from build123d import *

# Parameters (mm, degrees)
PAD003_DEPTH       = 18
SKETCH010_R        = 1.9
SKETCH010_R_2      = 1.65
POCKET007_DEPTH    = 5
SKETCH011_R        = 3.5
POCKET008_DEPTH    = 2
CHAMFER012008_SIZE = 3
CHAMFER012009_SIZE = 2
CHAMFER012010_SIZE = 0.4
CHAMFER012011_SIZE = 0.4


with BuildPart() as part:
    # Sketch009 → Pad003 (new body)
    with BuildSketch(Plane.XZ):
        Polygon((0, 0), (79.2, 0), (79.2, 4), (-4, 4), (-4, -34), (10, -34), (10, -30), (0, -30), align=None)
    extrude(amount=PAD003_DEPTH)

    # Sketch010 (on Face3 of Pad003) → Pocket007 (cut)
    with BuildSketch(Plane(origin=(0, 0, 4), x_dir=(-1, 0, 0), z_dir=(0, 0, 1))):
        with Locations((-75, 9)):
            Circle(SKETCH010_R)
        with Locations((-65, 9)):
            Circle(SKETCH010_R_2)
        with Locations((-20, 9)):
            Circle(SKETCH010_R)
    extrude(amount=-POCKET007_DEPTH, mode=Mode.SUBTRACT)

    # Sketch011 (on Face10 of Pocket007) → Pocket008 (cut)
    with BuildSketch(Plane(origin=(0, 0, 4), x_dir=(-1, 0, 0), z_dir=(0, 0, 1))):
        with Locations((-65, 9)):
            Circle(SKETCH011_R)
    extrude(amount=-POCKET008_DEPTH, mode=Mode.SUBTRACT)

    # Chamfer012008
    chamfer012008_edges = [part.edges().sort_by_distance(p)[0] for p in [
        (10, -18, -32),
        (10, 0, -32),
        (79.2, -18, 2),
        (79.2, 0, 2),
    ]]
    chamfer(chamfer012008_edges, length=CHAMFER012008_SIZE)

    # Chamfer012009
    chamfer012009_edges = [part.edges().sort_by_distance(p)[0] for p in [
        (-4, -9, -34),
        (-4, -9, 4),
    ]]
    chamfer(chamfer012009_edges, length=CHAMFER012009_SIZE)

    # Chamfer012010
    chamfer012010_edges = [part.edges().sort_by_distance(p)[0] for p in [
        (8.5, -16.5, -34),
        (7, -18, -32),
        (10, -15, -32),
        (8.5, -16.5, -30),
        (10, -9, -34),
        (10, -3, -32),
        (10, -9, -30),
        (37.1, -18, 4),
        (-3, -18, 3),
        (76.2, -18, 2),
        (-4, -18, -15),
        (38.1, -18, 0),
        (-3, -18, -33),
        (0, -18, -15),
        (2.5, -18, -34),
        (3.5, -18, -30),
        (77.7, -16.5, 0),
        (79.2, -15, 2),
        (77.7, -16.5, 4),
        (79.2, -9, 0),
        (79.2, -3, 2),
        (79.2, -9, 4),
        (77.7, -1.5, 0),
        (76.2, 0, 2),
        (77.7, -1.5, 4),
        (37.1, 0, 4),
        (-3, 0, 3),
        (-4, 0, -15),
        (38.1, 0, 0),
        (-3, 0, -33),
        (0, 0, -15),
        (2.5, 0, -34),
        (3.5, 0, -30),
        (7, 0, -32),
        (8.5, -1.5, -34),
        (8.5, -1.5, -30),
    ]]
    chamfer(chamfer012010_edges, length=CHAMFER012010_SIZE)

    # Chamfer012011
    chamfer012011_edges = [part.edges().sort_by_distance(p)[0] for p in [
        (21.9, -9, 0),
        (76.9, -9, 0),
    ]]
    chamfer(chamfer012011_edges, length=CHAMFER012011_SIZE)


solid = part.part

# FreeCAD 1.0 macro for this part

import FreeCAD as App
import Part
import Sketcher
from FreeCAD import Vector


def edges_at(feature, points):
    """Names of the edges that pass closest to the given points."""
    edges = feature.Shape.Edges
    near = lambda p: min(range(len(edges)), key=lambda i: edges[i].distToShape(Part.Vertex(*p))[0])
    return sorted({f"Edge{near(p) + 1}" for p in points})

doc = App.newDocument("Part")
params = doc.addObject("Spreadsheet::Sheet", "Params")
for row, (alias, value) in enumerate([
    ("sketch1_width", "14 mm"),
    ("sketch1_width2", "10 mm"),
    ("sketch1_height", "4 mm"),
    ("sketch1_height2", "38 mm"),
    ("sketch1_width3", "79.2 mm"),
    ("pad1_length", "18 mm"),
    ("sketch2_diameter", "3.8 mm"),
    ("sketch2_diameter2", "3.3 mm"),
    ("pocket1_length", "5 mm"),
    ("sketch3_diameter", "7 mm"),
    ("pocket2_length", "2 mm"),
    ("chamfer_size", "3 mm"),
    ("chamfer2_size", "2 mm"),
    ("chamfer3_size", "0.4 mm"),
    ("chamfer4_size", "0.4 mm"),
], start=1):
    params.set(f"A{row}", alias)
    params.set(f"B{row}", "=" + value)
    params.setAlias(f"B{row}", alias)

body = doc.addObject("PartDesign::Body", "Body")

sketch1 = doc.addObject("Sketcher::SketchObject", "Sketch")
body.addObject(sketch1)
sketch1.AttachmentSupport = (doc.XZ_Plane, [""])
sketch1.MapMode = "FlatFace"
sketch1.addGeometry(Part.LineSegment(Vector(0, 0, 0), Vector(79.2, 0, 0)), False)
sketch1.addGeometry(Part.LineSegment(Vector(79.2, 0, 0), Vector(79.2, 4, 0)), False)
sketch1.addGeometry(Part.LineSegment(Vector(79.2, 4, 0), Vector(-4, 4, 0)), False)
sketch1.addGeometry(Part.LineSegment(Vector(-4, 4, 0), Vector(-4, -34, 0)), False)
sketch1.addGeometry(Part.LineSegment(Vector(-4, -34, 0), Vector(10, -34, 0)), False)
sketch1.addGeometry(Part.LineSegment(Vector(10, -34, 0), Vector(10, -30, 0)), False)
sketch1.addGeometry(Part.LineSegment(Vector(10, -30, 0), Vector(0, -30, 0)), False)
sketch1.addGeometry(Part.LineSegment(Vector(0, -30, 0), Vector(0, 0, 0)), False)
sketch1.addConstraint(Sketcher.Constraint("Coincident", 0, 2, 1, 1))
sketch1.addConstraint(Sketcher.Constraint("Coincident", 1, 2, 2, 1))
sketch1.addConstraint(Sketcher.Constraint("Coincident", 2, 2, 3, 1))
sketch1.addConstraint(Sketcher.Constraint("Coincident", 3, 2, 4, 1))
sketch1.addConstraint(Sketcher.Constraint("Coincident", 4, 2, 5, 1))
sketch1.addConstraint(Sketcher.Constraint("Coincident", 5, 2, 6, 1))
sketch1.addConstraint(Sketcher.Constraint("Coincident", 6, 2, 7, 1))
sketch1.addConstraint(Sketcher.Constraint("Coincident", 7, 2, 0, 1))
sketch1.addConstraint(Sketcher.Constraint("Horizontal", 0))
sketch1.addConstraint(Sketcher.Constraint("Vertical", 1))
sketch1.addConstraint(Sketcher.Constraint("Horizontal", 2))
sketch1.addConstraint(Sketcher.Constraint("Vertical", 3))
sketch1.addConstraint(Sketcher.Constraint("Horizontal", 4))
sketch1.addConstraint(Sketcher.Constraint("Vertical", 5))
sketch1.addConstraint(Sketcher.Constraint("Horizontal", 6))
sketch1.addConstraint(Sketcher.Constraint("Vertical", 7))
sketch1.addConstraint(Sketcher.Constraint("Coincident", 7, 2, -1, 1))
sketch1.addConstraint(Sketcher.Constraint("Equal", 1, 5))
sketch1.addConstraint(Sketcher.Constraint("DistanceX", 4, 1, 4, 2, 14.0))
sketch1.addConstraint(Sketcher.Constraint("DistanceX", 6, 2, 6, 1, 10.0))
sketch1.addConstraint(Sketcher.Constraint("DistanceY", 1, 1, 1, 2, 4.0))
sketch1.addConstraint(Sketcher.Constraint("DistanceY", 3, 2, 3, 1, 38.0))
sketch1.addConstraint(Sketcher.Constraint("DistanceX", 0, 1, 0, 2, 79.2))
sketch1.setExpression("Constraints[18]", "Params.sketch1_width")
sketch1.setExpression("Constraints[19]", "Params.sketch1_width2")
sketch1.setExpression("Constraints[20]", "Params.sketch1_height")
sketch1.setExpression("Constraints[21]", "Params.sketch1_height2")
sketch1.setExpression("Constraints[22]", "Params.sketch1_width3")
pad1 = doc.addObject("PartDesign::Pad", "Pad")
body.addObject(pad1)
pad1.Profile = sketch1
pad1.setExpression("Length", "Params.pad1_length")

sketch2 = doc.addObject("Sketcher::SketchObject", "Sketch001")
body.addObject(sketch2)
sketch2.AttachmentSupport = (doc.XY_Plane, [""])
sketch2.MapMode = "FlatFace"
sketch2.AttachmentOffset = App.Placement(Vector(0, 0, 4), App.Rotation())
sketch2.addGeometry(Part.Circle(Vector(75, -9, 0), Vector(0, 0, 1), 1.9), False)
sketch2.addGeometry(Part.Circle(Vector(65, -9, 0), Vector(0, 0, 1), 1.6), False)
sketch2.addGeometry(Part.Circle(Vector(20, -9, 0), Vector(0, 0, 1), 1.9), False)
sketch2.addConstraint(Sketcher.Constraint("Equal", 0, 2))
sketch2.addConstraint(Sketcher.Constraint("Horizontal", 0, 3, 1, 3))
sketch2.addConstraint(Sketcher.Constraint("Horizontal", 1, 3, 2, 3))
sketch2.addConstraint(Sketcher.Constraint("Diameter", 0, 3.8))
sketch2.addConstraint(Sketcher.Constraint("Diameter", 1, 3.3))
sketch2.addConstraint(Sketcher.Constraint("DistanceX", -1, 1, 0, 3, 75.0))
sketch2.addConstraint(Sketcher.Constraint("DistanceY", 0, 3, -1, 1, 9.0))
sketch2.addConstraint(Sketcher.Constraint("DistanceX", -1, 1, 1, 3, 65.0))
sketch2.addConstraint(Sketcher.Constraint("DistanceX", -1, 1, 2, 3, 20.0))
sketch2.setExpression("Constraints[3]", "Params.sketch2_diameter")
sketch2.setExpression("Constraints[4]", "Params.sketch2_diameter2")
pocket1 = doc.addObject("PartDesign::Pocket", "Pocket")
body.addObject(pocket1)
pocket1.Profile = sketch2
pocket1.setExpression("Length", "Params.pocket1_length")

sketch3 = doc.addObject("Sketcher::SketchObject", "Sketch002")
body.addObject(sketch3)
sketch3.AttachmentSupport = (doc.XY_Plane, [""])
sketch3.MapMode = "FlatFace"
sketch3.AttachmentOffset = App.Placement(Vector(0, 0, 4), App.Rotation())
sketch3.addGeometry(Part.Circle(Vector(65, -9, 0), Vector(0, 0, 1), 3.5), False)
sketch3.addConstraint(Sketcher.Constraint("Diameter", 0, 7.0))
sketch3.addConstraint(Sketcher.Constraint("DistanceX", -1, 1, 0, 3, 65.0))
sketch3.addConstraint(Sketcher.Constraint("DistanceY", 0, 3, -1, 1, 9.0))
sketch3.setExpression("Constraints[0]", "Params.sketch3_diameter")
pocket2 = doc.addObject("PartDesign::Pocket", "Pocket001")
body.addObject(pocket2)
pocket2.Profile = sketch3
pocket2.setExpression("Length", "Params.pocket2_length")
doc.recompute()

chamfer = doc.addObject("PartDesign::Chamfer", "Chamfer")
body.addObject(chamfer)
chamfer.Base = (pocket2, edges_at(pocket2, [
    (10, -18, -32),
    (10, 0, -32),
    (79.2, -18, 2),
    (79.2, 0, 2),
]))
chamfer.setExpression("Size", "Params.chamfer_size")
doc.recompute()

chamfer2 = doc.addObject("PartDesign::Chamfer", "Chamfer001")
body.addObject(chamfer2)
chamfer2.Base = (chamfer, edges_at(chamfer, [(-4, -9, -34), (-4, -9, 4)]))
chamfer2.setExpression("Size", "Params.chamfer2_size")
doc.recompute()

chamfer3 = doc.addObject("PartDesign::Chamfer", "Chamfer002")
body.addObject(chamfer3)
chamfer3.Base = (chamfer2, edges_at(chamfer2, [
    (8.5, -16.5, -34),
    (7, -18, -32),
    (10, -15, -32),
    (8.5, -16.5, -30),
    (10, -9, -34),
    (10, -3, -32),
    (10, -9, -30),
    (37.1, -18, 4),
    (-3, -18, 3),
    (76.2, -18, 2),
    (-4, -18, -15),
    (38.1, -18, 0),
    (-3, -18, -33),
    (0, -18, -15),
    (2.5, -18, -34),
    (3.5, -18, -30),
    (77.7, -16.5, 0),
    (79.2, -15, 2),
    (77.7, -16.5, 4),
    (79.2, -9, 0),
    (79.2, -3, 2),
    (79.2, -9, 4),
    (77.7, -1.5, 0),
    (76.2, 0, 2),
    (77.7, -1.5, 4),
    (37.1, 0, 4),
    (-3, 0, 3),
    (-4, 0, -15),
    (38.1, 0, 0),
    (-3, 0, -33),
    (0, 0, -15),
    (2.5, 0, -34),
    (3.5, 0, -30),
    (7, 0, -32),
    (8.5, -1.5, -34),
    (8.5, -1.5, -30),
]))
chamfer3.setExpression("Size", "Params.chamfer3_size")
doc.recompute()

chamfer4 = doc.addObject("PartDesign::Chamfer", "Chamfer003")
body.addObject(chamfer4)
chamfer4.Base = (chamfer3, edges_at(chamfer3, [(21.9, -9, 0), (76.9, -9, 0)]))
chamfer4.setExpression("Size", "Params.chamfer4_size")

doc.recompute()
